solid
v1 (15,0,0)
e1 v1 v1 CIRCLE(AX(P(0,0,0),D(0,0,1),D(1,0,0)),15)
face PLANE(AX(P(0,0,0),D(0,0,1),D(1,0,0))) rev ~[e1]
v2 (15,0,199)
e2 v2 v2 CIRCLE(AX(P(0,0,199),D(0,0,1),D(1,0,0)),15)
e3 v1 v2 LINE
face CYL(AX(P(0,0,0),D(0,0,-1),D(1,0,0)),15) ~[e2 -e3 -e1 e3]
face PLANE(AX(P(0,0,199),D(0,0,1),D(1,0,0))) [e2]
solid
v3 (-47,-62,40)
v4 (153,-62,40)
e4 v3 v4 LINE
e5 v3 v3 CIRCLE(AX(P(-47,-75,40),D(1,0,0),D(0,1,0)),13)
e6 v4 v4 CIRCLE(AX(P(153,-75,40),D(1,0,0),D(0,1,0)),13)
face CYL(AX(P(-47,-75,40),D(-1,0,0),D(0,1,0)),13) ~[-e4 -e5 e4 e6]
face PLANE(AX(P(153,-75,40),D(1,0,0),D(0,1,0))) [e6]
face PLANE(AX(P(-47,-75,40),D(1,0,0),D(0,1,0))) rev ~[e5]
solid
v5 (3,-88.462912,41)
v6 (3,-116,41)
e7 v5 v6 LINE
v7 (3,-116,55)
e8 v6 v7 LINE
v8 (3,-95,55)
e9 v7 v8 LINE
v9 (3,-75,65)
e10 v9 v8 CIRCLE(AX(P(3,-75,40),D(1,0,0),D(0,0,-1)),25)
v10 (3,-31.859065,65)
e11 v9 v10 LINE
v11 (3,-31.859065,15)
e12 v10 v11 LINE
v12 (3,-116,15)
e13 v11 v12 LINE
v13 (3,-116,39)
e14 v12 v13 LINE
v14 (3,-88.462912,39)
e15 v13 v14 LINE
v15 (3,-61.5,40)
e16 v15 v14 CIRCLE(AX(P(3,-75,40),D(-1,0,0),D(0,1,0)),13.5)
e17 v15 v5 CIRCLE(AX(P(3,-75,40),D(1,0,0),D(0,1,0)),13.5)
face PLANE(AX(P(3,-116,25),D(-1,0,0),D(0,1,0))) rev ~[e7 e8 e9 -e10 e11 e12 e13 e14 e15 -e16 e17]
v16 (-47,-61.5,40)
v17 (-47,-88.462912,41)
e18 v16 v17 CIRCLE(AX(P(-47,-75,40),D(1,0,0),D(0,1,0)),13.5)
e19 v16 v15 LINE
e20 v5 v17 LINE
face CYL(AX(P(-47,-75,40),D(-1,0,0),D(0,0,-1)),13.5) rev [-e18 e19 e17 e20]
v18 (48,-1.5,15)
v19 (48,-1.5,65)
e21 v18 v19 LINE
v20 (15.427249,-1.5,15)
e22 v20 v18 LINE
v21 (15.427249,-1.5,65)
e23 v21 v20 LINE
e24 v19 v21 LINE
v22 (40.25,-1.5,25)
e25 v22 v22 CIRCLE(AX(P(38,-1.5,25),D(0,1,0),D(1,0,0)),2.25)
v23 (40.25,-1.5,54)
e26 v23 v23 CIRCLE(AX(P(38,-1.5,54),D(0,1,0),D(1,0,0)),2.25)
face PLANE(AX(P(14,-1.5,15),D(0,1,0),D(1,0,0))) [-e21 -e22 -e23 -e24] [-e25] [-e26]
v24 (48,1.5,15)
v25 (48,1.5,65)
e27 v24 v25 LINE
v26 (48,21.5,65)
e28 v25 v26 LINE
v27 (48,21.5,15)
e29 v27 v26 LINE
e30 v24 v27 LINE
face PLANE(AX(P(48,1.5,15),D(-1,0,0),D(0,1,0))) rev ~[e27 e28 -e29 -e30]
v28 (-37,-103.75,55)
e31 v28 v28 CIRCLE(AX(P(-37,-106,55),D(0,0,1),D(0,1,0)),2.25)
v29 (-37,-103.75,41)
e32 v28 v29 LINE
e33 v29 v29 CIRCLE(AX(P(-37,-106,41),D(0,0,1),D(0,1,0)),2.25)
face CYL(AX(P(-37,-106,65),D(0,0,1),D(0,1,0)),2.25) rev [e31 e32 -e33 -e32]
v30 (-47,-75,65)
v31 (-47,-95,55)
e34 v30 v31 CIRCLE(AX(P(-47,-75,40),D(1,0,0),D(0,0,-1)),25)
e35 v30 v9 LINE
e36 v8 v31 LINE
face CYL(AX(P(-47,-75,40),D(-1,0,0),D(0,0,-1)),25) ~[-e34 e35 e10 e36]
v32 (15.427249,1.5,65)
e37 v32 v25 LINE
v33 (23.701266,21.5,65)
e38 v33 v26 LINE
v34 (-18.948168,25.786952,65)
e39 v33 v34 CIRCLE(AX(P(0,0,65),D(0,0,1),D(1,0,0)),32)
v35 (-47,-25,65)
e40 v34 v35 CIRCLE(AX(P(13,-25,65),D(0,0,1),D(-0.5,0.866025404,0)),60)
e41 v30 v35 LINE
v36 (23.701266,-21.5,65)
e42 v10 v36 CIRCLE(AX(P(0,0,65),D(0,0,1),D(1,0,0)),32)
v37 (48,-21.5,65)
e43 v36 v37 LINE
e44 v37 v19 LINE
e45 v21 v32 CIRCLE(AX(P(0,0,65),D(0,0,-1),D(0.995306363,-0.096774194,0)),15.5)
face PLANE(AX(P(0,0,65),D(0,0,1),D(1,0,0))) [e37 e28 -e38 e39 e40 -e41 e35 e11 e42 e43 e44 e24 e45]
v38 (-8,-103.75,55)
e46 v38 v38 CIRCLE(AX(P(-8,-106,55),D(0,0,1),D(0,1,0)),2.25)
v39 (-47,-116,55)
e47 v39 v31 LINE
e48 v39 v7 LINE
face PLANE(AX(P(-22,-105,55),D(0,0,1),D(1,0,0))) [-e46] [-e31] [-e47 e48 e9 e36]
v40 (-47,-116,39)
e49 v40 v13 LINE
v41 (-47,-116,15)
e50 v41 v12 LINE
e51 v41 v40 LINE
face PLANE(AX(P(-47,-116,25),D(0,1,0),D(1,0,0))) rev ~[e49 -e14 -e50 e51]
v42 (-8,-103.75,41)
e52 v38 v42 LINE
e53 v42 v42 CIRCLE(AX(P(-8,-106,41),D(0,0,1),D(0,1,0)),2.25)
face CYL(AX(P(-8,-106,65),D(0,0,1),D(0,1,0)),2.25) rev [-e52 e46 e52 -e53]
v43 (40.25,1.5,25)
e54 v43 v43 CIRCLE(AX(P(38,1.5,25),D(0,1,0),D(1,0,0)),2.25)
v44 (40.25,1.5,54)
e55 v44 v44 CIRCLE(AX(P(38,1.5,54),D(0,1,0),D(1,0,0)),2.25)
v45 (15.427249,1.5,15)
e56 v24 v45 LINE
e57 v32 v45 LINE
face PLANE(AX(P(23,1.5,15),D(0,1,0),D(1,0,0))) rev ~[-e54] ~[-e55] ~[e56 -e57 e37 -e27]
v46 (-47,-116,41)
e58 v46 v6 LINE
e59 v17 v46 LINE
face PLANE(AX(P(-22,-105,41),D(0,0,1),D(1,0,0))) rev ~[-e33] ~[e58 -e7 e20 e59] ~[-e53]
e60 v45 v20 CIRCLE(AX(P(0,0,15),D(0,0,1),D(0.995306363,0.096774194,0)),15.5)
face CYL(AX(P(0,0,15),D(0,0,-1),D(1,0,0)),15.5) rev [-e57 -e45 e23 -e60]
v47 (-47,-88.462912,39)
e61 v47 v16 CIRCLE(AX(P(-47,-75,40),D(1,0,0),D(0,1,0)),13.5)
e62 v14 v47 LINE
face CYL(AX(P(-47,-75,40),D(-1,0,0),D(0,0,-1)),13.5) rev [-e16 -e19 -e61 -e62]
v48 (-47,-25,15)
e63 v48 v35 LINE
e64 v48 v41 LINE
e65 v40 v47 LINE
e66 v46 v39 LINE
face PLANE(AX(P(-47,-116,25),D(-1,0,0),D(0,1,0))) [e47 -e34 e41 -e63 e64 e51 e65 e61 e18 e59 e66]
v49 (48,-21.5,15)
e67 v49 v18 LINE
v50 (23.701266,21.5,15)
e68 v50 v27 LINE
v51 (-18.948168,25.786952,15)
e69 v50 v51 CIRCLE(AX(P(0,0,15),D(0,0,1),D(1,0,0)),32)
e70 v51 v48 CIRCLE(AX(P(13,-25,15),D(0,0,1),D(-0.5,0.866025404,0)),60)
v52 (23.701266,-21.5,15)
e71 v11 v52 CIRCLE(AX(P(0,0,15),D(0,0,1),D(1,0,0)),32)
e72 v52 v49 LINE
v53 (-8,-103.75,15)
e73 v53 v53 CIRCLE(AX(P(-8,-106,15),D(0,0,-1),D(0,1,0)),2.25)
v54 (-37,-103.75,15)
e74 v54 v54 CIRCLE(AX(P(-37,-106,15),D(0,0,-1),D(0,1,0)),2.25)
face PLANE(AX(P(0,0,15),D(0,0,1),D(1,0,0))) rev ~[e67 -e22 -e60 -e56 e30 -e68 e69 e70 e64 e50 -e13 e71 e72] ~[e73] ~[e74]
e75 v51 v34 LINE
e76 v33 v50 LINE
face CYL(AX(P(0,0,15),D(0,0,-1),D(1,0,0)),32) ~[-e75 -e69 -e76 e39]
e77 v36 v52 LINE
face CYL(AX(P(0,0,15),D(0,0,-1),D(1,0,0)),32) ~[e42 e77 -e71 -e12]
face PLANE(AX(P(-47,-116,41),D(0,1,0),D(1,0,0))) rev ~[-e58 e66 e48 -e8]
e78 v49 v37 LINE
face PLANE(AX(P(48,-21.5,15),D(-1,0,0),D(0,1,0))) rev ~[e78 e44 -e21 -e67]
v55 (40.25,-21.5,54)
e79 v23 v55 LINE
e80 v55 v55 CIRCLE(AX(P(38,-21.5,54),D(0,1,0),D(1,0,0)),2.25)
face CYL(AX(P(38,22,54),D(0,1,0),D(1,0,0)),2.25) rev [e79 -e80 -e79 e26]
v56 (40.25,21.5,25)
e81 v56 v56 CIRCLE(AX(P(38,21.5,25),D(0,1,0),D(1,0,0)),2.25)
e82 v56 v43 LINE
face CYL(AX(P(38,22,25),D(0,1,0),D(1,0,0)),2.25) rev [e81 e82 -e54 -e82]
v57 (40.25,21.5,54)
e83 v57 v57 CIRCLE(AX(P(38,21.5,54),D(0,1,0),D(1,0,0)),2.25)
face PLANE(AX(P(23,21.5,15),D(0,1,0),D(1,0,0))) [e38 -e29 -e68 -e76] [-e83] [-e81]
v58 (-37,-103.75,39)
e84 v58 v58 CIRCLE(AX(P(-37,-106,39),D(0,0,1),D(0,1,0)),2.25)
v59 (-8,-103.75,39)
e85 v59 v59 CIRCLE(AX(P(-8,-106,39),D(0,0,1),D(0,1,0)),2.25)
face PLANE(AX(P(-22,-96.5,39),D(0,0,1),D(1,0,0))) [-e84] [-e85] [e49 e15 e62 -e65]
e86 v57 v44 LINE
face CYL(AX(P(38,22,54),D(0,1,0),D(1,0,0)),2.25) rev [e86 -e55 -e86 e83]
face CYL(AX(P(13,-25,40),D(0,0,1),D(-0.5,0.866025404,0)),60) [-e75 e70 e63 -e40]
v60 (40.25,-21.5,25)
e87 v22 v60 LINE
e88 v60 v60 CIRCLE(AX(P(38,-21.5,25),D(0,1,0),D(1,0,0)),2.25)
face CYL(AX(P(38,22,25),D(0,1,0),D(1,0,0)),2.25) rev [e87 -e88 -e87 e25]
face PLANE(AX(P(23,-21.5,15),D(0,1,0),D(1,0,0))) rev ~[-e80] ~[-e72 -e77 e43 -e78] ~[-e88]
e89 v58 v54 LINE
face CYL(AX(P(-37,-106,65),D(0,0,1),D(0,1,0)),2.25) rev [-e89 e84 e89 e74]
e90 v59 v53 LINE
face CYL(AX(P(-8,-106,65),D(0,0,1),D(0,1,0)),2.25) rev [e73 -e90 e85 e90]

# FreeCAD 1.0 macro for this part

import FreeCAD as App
import Part
import Sketcher
from FreeCAD import Vector
Q = App.Units.Quantity

doc = App.newDocument("Part")
body = doc.addObject("PartDesign::Body", "Body")

sketch1 = doc.addObject("Sketcher::SketchObject", "Sketch")
body.addObject(sketch1)
sketch1.AttachmentSupport = (doc.XY_Plane, [""])
sketch1.MapMode = "FlatFace"
sketch1.addGeometry(Part.Circle(Vector(0, 0, 0), Vector(0, 0, 1), 15), False)
sketch1.addConstraint([
    Sketcher.Constraint("Coincident", 0, 3, -1, 1),
    Sketcher.Constraint("Diameter", 0, Q("30 mm")),
])
pad1 = doc.addObject("PartDesign::Pad", "Pad")
body.addObject(pad1)
pad1.Profile = sketch1
pad1.Length = 199
body2 = doc.addObject("PartDesign::Body", "Body001")

sketch2 = doc.addObject("Sketcher::SketchObject", "Sketch001")
body2.addObject(sketch2)
sketch2.AttachmentSupport = (doc.getObject("YZ_Plane001"), [""])
sketch2.MapMode = "FlatFace"
sketch2.AttachmentOffset = App.Placement(Vector(0, 0, -47), App.Rotation())
sketch2.addGeometry(Part.Circle(Vector(-75, 40, 0), Vector(0, 0, 1), 13), False)
sketch2.addConstraint([
    Sketcher.Constraint("Diameter", 0, Q("26 mm")),
    Sketcher.Constraint("DistanceX", 0, 3, -1, 1, Q("75 mm")),
    Sketcher.Constraint("DistanceY", -1, 1, 0, 3, Q("40 mm")),
])
pad2 = doc.addObject("PartDesign::Pad", "Pad001")
body2.addObject(pad2)
pad2.Profile = sketch2
pad2.Length = 200
body3 = doc.addObject("PartDesign::Body", "Body002")

sketch3 = doc.addObject("Sketcher::SketchObject", "Sketch002")
body3.addObject(sketch3)
sketch3.AttachmentSupport = (doc.getObject("XZ_Plane002"), [""])
sketch3.MapMode = "FlatFace"
sketch3.AttachmentOffset = App.Placement(Vector(0, 0, -22), App.Rotation())
sketch3.addGeometry(Part.Circle(Vector(38, 25, 0), Vector(0, 0, 1), 2.25), False)
sketch3.addConstraint([
    Sketcher.Constraint("Diameter", 0, Q("4.5 mm")),
    Sketcher.Constraint("DistanceX", -1, 1, 0, 3, Q("38 mm")),
    Sketcher.Constraint("DistanceY", -1, 1, 0, 3, Q("25 mm")),
])
pad3 = doc.addObject("PartDesign::Pad", "Pad002")
body3.addObject(pad3)
pad3.Profile = sketch3
pad3.Length = 50
body4 = doc.addObject("PartDesign::Body", "Body003")
body4.AllowCompound = True

sketch4 = doc.addObject("Sketcher::SketchObject", "Sketch003")
body4.addObject(sketch4)
sketch4.AttachmentSupport = (doc.getObject("XZ_Plane003"), [""])
sketch4.MapMode = "FlatFace"
sketch4.AttachmentOffset = App.Placement(Vector(0, 0, -22), App.Rotation())
sketch4.addGeometry(Part.Circle(Vector(38, 54, 0), Vector(0, 0, 1), 2.25), False)
sketch4.addConstraint([
    Sketcher.Constraint("Diameter", 0, Q("4.5 mm")),
    Sketcher.Constraint("DistanceX", -1, 1, 0, 3, Q("38 mm")),
    Sketcher.Constraint("DistanceY", -1, 1, 0, 3, Q("54 mm")),
])
pad4 = doc.addObject("PartDesign::Pad", "Pad003")
body4.addObject(pad4)
pad4.Profile = sketch4
pad4.Length = 50
doc.recompute()

boolean = doc.addObject("PartDesign::Boolean", "Boolean")
body4.addObject(boolean)
boolean.Type = "Fuse"
boolean.addObjects([body3])
body5 = doc.addObject("PartDesign::Body", "Body004")
body5.AllowCompound = True
doc.recompute()

body4.Placement = App.Placement(Vector(0, 0, 0), App.Rotation(Vector(1, 0, 0), 90))
boolean2 = doc.addObject("PartDesign::Boolean", "Boolean001")
body5.addObject(boolean2)
boolean2.Type = "Fuse"
boolean2.addObjects([body4])
body6 = doc.addObject("PartDesign::Body", "Body005")
body6.AllowCompound = True
doc.recompute()

body5.Placement = App.Placement(Vector(-62, -144, 43), App.Rotation(Vector(0, 0, 1), 90))
boolean3 = doc.addObject("PartDesign::Boolean", "Boolean002")
body6.addObject(boolean3)
boolean3.Type = "Fuse"
boolean3.addObjects([body5])
body7 = doc.addObject("PartDesign::Body", "Body006")

sketch5 = doc.addObject("Sketcher::SketchObject", "Sketch004")
body7.addObject(sketch5)
sketch5.AttachmentSupport = (doc.getObject("XY_Plane006"), [""])
sketch5.MapMode = "FlatFace"
sketch5.addGeometry(Part.Circle(Vector(0, 0, 0), Vector(0, 0, 1), 15.5), False)
sketch5.addConstraint([
    Sketcher.Constraint("Coincident", 0, 3, -1, 1),
    Sketcher.Constraint("Diameter", 0, Q("31 mm")),
])
pad5 = doc.addObject("PartDesign::Pad", "Pad004")
body7.addObject(pad5)
pad5.Profile = sketch5
pad5.Length = 199
body8 = doc.addObject("PartDesign::Body", "Body007")

sketch6 = doc.addObject("Sketcher::SketchObject", "Sketch005")
body8.addObject(sketch6)
sketch6.AttachmentSupport = (doc.getObject("YZ_Plane007"), [""])
sketch6.MapMode = "FlatFace"
sketch6.AttachmentOffset = App.Placement(Vector(0, 0, -47), App.Rotation())
sketch6.addGeometry(Part.Circle(Vector(-75, 40, 0), Vector(0, 0, 1), 13.5), False)
sketch6.addConstraint([
    Sketcher.Constraint("Diameter", 0, Q("27 mm")),
    Sketcher.Constraint("DistanceX", 0, 3, -1, 1, Q("75 mm")),
    Sketcher.Constraint("DistanceY", -1, 1, 0, 3, Q("40 mm")),
])
pad6 = doc.addObject("PartDesign::Pad", "Pad005")
body8.addObject(pad6)
pad6.Profile = sketch6
pad6.Length = 200
body9 = doc.addObject("PartDesign::Body", "Body008")

sketch7 = doc.addObject("Sketcher::SketchObject", "Sketch006")
body9.addObject(sketch7)
sketch7.AttachmentSupport = (doc.getObject("XY_Plane008"), [""])
sketch7.MapMode = "FlatFace"
sketch7.AttachmentOffset = App.Placement(Vector(0, 0, 15), App.Rotation())
sketch7.addGeometry([
    Part.LineSegment(Vector(14, 1.5, 0), Vector(14, -1.5, 0)),
    Part.LineSegment(Vector(14, -1.5, 0), Vector(34, -1.5, 0)),
    Part.LineSegment(Vector(34, -1.5, 0), Vector(34, 1.5, 0)),
    Part.LineSegment(Vector(34, 1.5, 0), Vector(14, 1.5, 0)),
], False)
sketch7.addConstraint([
    Sketcher.Constraint("Coincident", 0, 2, 1, 1),
    Sketcher.Constraint("Coincident", 1, 2, 2, 1),
    Sketcher.Constraint("Coincident", 2, 2, 3, 1),
    Sketcher.Constraint("Coincident", 3, 2, 0, 1),
    Sketcher.Constraint("Vertical", 0),
    Sketcher.Constraint("Horizontal", 1),
    Sketcher.Constraint("Vertical", 2),
    Sketcher.Constraint("Horizontal", 3),
    Sketcher.Constraint("DistanceX", 1, 1, 1, 2, Q("20 mm")),
    Sketcher.Constraint("DistanceY", 0, 2, 0, 1, Q("3 mm")),
    Sketcher.Constraint("DistanceX", -1, 1, 0, 2, Q("14 mm")),
    Sketcher.Constraint("DistanceY", 0, 2, -1, 1, Q("1.5 mm")),
])
pad7 = doc.addObject("PartDesign::Pad", "Pad006")
body9.addObject(pad7)
pad7.Profile = sketch7
pad7.Length = 50
body10 = doc.addObject("PartDesign::Body", "Body009")

sketch8 = doc.addObject("Sketcher::SketchObject", "Sketch007")
body10.addObject(sketch8)
sketch8.AttachmentSupport = (doc.getObject("XY_Plane009"), [""])
sketch8.MapMode = "FlatFace"
sketch8.AttachmentOffset = App.Placement(Vector(0, 0, 39), App.Rotation())
sketch8.addGeometry([
    Part.LineSegment(Vector(-47, -83, 0), Vector(-47, -110, 0)),
    Part.LineSegment(Vector(-47, -110, 0), Vector(3, -110, 0)),
    Part.LineSegment(Vector(3, -110, 0), Vector(3, -83, 0)),
    Part.LineSegment(Vector(3, -83, 0), Vector(-47, -83, 0)),
], False)
sketch8.addConstraint([
    Sketcher.Constraint("Coincident", 0, 2, 1, 1),
    Sketcher.Constraint("Coincident", 1, 2, 2, 1),
    Sketcher.Constraint("Coincident", 2, 2, 3, 1),
    Sketcher.Constraint("Coincident", 3, 2, 0, 1),
    Sketcher.Constraint("Vertical", 0),
    Sketcher.Constraint("Horizontal", 1),
    Sketcher.Constraint("Vertical", 2),
    Sketcher.Constraint("Horizontal", 3),
    Sketcher.Constraint("DistanceX", 1, 1, 1, 2, Q("50 mm")),
    Sketcher.Constraint("DistanceY", 0, 2, 0, 1, Q("27 mm")),
    Sketcher.Constraint("DistanceX", 0, 2, -1, 1, Q("47 mm")),
    Sketcher.Constraint("DistanceY", 0, 2, -1, 1, Q("110 mm")),
])
pad8 = doc.addObject("PartDesign::Pad", "Pad007")
body10.addObject(pad8)
pad8.Profile = sketch8
pad8.Length = 2
body11 = doc.addObject("PartDesign::Body", "Body010")

sketch9 = doc.addObject("Sketcher::SketchObject", "Sketch008")
body11.addObject(sketch9)
sketch9.AttachmentSupport = (doc.getObject("XZ_Plane010"), [""])
sketch9.MapMode = "FlatFace"
sketch9.AttachmentOffset = App.Placement(Vector(0, 0, -22), App.Rotation())
sketch9.addGeometry(Part.Circle(Vector(38, 25, 0), Vector(0, 0, 1), 2.25), False)
sketch9.addConstraint([
    Sketcher.Constraint("Diameter", 0, Q("4.5 mm")),
    Sketcher.Constraint("DistanceX", -1, 1, 0, 3, Q("38 mm")),
    Sketcher.Constraint("DistanceY", -1, 1, 0, 3, Q("25 mm")),
])
pad9 = doc.addObject("PartDesign::Pad", "Pad008")
body11.addObject(pad9)
pad9.Profile = sketch9
pad9.Length = 50
body12 = doc.addObject("PartDesign::Body", "Body011")
body12.AllowCompound = True

sketch10 = doc.addObject("Sketcher::SketchObject", "Sketch009")
body12.addObject(sketch10)
sketch10.AttachmentSupport = (doc.getObject("XZ_Plane011"), [""])
sketch10.MapMode = "FlatFace"
sketch10.AttachmentOffset = App.Placement(Vector(0, 0, -22), App.Rotation())
sketch10.addGeometry(Part.Circle(Vector(38, 54, 0), Vector(0, 0, 1), 2.25), False)
sketch10.addConstraint([
    Sketcher.Constraint("Diameter", 0, Q("4.5 mm")),
    Sketcher.Constraint("DistanceX", -1, 1, 0, 3, Q("38 mm")),
    Sketcher.Constraint("DistanceY", -1, 1, 0, 3, Q("54 mm")),
])
pad10 = doc.addObject("PartDesign::Pad", "Pad009")
body12.addObject(pad10)
pad10.Profile = sketch10
pad10.Length = 50
doc.recompute()

boolean4 = doc.addObject("PartDesign::Boolean", "Boolean003")
body12.addObject(boolean4)
boolean4.Type = "Fuse"
boolean4.addObjects([body11])
doc.recompute()

boolean5 = doc.addObject("PartDesign::Boolean", "Boolean004")
body12.addObject(boolean5)
boolean5.Type = "Fuse"
boolean5.addObjects([body6])
doc.recompute()

boolean6 = doc.addObject("PartDesign::Boolean", "Boolean005")
body12.addObject(boolean6)
boolean6.Type = "Fuse"
boolean6.addObjects([body7])
doc.recompute()

boolean7 = doc.addObject("PartDesign::Boolean", "Boolean006")
body12.addObject(boolean7)
boolean7.Type = "Fuse"
boolean7.addObjects([body8])
doc.recompute()

boolean8 = doc.addObject("PartDesign::Boolean", "Boolean007")
body12.addObject(boolean8)
boolean8.Type = "Fuse"
boolean8.addObjects([body9])
doc.recompute()

boolean9 = doc.addObject("PartDesign::Boolean", "Boolean008")
body12.addObject(boolean9)
boolean9.Type = "Fuse"
boolean9.addObjects([body10])
body13 = doc.addObject("PartDesign::Body", "Body012")

sketch11 = doc.addObject("Sketcher::SketchObject", "Sketch010")
body13.addObject(sketch11)
sketch11.AttachmentSupport = (doc.getObject("XY_Plane012"), [""])
sketch11.MapMode = "FlatFace"
sketch11.AttachmentOffset = App.Placement(Vector(0, 0, 15), App.Rotation())
sketch11.addGeometry([
    Part.LineSegment(Vector(23, -1.5, 0), Vector(23, -21.5, 0)),
    Part.LineSegment(Vector(23, -21.5, 0), Vector(48, -21.5, 0)),
    Part.LineSegment(Vector(48, -21.5, 0), Vector(48, -1.5, 0)),
    Part.LineSegment(Vector(48, -1.5, 0), Vector(23, -1.5, 0)),
], False)
sketch11.addConstraint([
    Sketcher.Constraint("Coincident", 0, 2, 1, 1),
    Sketcher.Constraint("Coincident", 1, 2, 2, 1),
    Sketcher.Constraint("Coincident", 2, 2, 3, 1),
    Sketcher.Constraint("Coincident", 3, 2, 0, 1),
    Sketcher.Constraint("Vertical", 0),
    Sketcher.Constraint("Horizontal", 1),
    Sketcher.Constraint("Vertical", 2),
    Sketcher.Constraint("Horizontal", 3),
    Sketcher.Constraint("DistanceX", 1, 1, 1, 2, Q("25 mm")),
    Sketcher.Constraint("DistanceY", 0, 2, 0, 1, Q("20 mm")),
    Sketcher.Constraint("DistanceX", -1, 1, 0, 2, Q("23 mm")),
    Sketcher.Constraint("DistanceY", 0, 2, -1, 1, Q("21.5 mm")),
])
pad11 = doc.addObject("PartDesign::Pad", "Pad010")
body13.addObject(pad11)
pad11.Profile = sketch11
pad11.Length = 50
body14 = doc.addObject("PartDesign::Body", "Body013")

sketch12 = doc.addObject("Sketcher::SketchObject", "Sketch011")
body14.addObject(sketch12)
sketch12.AttachmentSupport = (doc.getObject("XY_Plane013"), [""])
sketch12.MapMode = "FlatFace"
sketch12.AttachmentOffset = App.Placement(Vector(0, 0, 15), App.Rotation())
sketch12.addGeometry([
    Part.LineSegment(Vector(23, 21.5, 0), Vector(23, 1.5, 0)),
    Part.LineSegment(Vector(23, 1.5, 0), Vector(48, 1.5, 0)),
    Part.LineSegment(Vector(48, 1.5, 0), Vector(48, 21.5, 0)),
    Part.LineSegment(Vector(48, 21.5, 0), Vector(23, 21.5, 0)),
], False)
sketch12.addConstraint([
    Sketcher.Constraint("Coincident", 0, 2, 1, 1),
    Sketcher.Constraint("Coincident", 1, 2, 2, 1),
    Sketcher.Constraint("Coincident", 2, 2, 3, 1),
    Sketcher.Constraint("Coincident", 3, 2, 0, 1),
    Sketcher.Constraint("Vertical", 0),
    Sketcher.Constraint("Horizontal", 1),
    Sketcher.Constraint("Vertical", 2),
    Sketcher.Constraint("Horizontal", 3),
    Sketcher.Constraint("DistanceX", 1, 1, 1, 2, Q("25 mm")),
    Sketcher.Constraint("DistanceY", 0, 2, 0, 1, Q("20 mm")),
    Sketcher.Constraint("DistanceX", -1, 1, 0, 2, Q("23 mm")),
    Sketcher.Constraint("DistanceY", -1, 1, 0, 2, Q("1.5 mm")),
])
pad12 = doc.addObject("PartDesign::Pad", "Pad011")
body14.addObject(pad12)
pad12.Profile = sketch12
pad12.Length = 50
body15 = doc.addObject("PartDesign::Body", "Body014")

sketch13 = doc.addObject("Sketcher::SketchObject", "Sketch012")
body15.addObject(sketch13)
sketch13.AttachmentSupport = (doc.getObject("XY_Plane014"), [""])
sketch13.MapMode = "FlatFace"
sketch13.AttachmentOffset = App.Placement(Vector(0, 0, 15), App.Rotation())
sketch13.addGeometry([
    Part.LineSegment(Vector(-47, -41, 0), Vector(-47, -116, 0)),
    Part.LineSegment(Vector(-47, -116, 0), Vector(3, -116, 0)),
    Part.LineSegment(Vector(3, -116, 0), Vector(3, -41, 0)),
    Part.LineSegment(Vector(3, -41, 0), Vector(-47, -41, 0)),
], False)
sketch13.addConstraint([
    Sketcher.Constraint("Coincident", 0, 2, 1, 1),
    Sketcher.Constraint("Coincident", 1, 2, 2, 1),
    Sketcher.Constraint("Coincident", 2, 2, 3, 1),
    Sketcher.Constraint("Coincident", 3, 2, 0, 1),
    Sketcher.Constraint("Vertical", 0),
    Sketcher.Constraint("Horizontal", 1),
    Sketcher.Constraint("Vertical", 2),
    Sketcher.Constraint("Horizontal", 3),
    Sketcher.Constraint("DistanceX", 1, 1, 1, 2, Q("50 mm")),
    Sketcher.Constraint("DistanceY", 0, 2, 0, 1, Q("75 mm")),
    Sketcher.Constraint("DistanceX", 0, 2, -1, 1, Q("47 mm")),
    Sketcher.Constraint("DistanceY", 0, 2, -1, 1, Q("116 mm")),
])
pad13 = doc.addObject("PartDesign::Pad", "Pad012")
body15.addObject(pad13)
pad13.Profile = sketch13
pad13.Length = 10
body16 = doc.addObject("PartDesign::Body", "Body015")

sketch14 = doc.addObject("Sketcher::SketchObject", "Sketch013")
body16.addObject(sketch14)
sketch14.AttachmentSupport = (doc.getObject("XY_Plane015"), [""])
sketch14.MapMode = "FlatFace"
sketch14.AttachmentOffset = App.Placement(Vector(0, 0, 25), App.Rotation())
sketch14.addGeometry([
    Part.LineSegment(Vector(-47, -64, 0), Vector(-47, -116, 0)),
    Part.LineSegment(Vector(-47, -116, 0), Vector(3, -116, 0)),
    Part.LineSegment(Vector(3, -116, 0), Vector(3, -64, 0)),
    Part.LineSegment(Vector(3, -64, 0), Vector(-47, -64, 0)),
], False)
sketch14.addConstraint([
    Sketcher.Constraint("Coincident", 0, 2, 1, 1),
    Sketcher.Constraint("Coincident", 1, 2, 2, 1),
    Sketcher.Constraint("Coincident", 2, 2, 3, 1),
    Sketcher.Constraint("Coincident", 3, 2, 0, 1),
    Sketcher.Constraint("Vertical", 0),
    Sketcher.Constraint("Horizontal", 1),
    Sketcher.Constraint("Vertical", 2),
    Sketcher.Constraint("Horizontal", 3),
    Sketcher.Constraint("DistanceX", 1, 1, 1, 2, Q("50 mm")),
    Sketcher.Constraint("DistanceY", 0, 2, 0, 1, Q("52 mm")),
    Sketcher.Constraint("DistanceX", 0, 2, -1, 1, Q("47 mm")),
    Sketcher.Constraint("DistanceY", 0, 2, -1, 1, Q("116 mm")),
])
pad14 = doc.addObject("PartDesign::Pad", "Pad013")
body16.addObject(pad14)
pad14.Profile = sketch14
pad14.Length = 14
body17 = doc.addObject("PartDesign::Body", "Body016")

sketch15 = doc.addObject("Sketcher::SketchObject", "Sketch014")
body17.addObject(sketch15)
sketch15.AttachmentSupport = (doc.getObject("XY_Plane016"), [""])
sketch15.MapMode = "FlatFace"
sketch15.AttachmentOffset = App.Placement(Vector(0, 0, 41), App.Rotation())
sketch15.addGeometry([
    Part.LineSegment(Vector(-47, -94, 0), Vector(-47, -116, 0)),
    Part.LineSegment(Vector(-47, -116, 0), Vector(3, -116, 0)),
    Part.LineSegment(Vector(3, -116, 0), Vector(3, -94, 0)),
    Part.LineSegment(Vector(3, -94, 0), Vector(-47, -94, 0)),
], False)
sketch15.addConstraint([
    Sketcher.Constraint("Coincident", 0, 2, 1, 1),
    Sketcher.Constraint("Coincident", 1, 2, 2, 1),
    Sketcher.Constraint("Coincident", 2, 2, 3, 1),
    Sketcher.Constraint("Coincident", 3, 2, 0, 1),
    Sketcher.Constraint("Vertical", 0),
    Sketcher.Constraint("Horizontal", 1),
    Sketcher.Constraint("Vertical", 2),
    Sketcher.Constraint("Horizontal", 3),
    Sketcher.Constraint("DistanceX", 1, 1, 1, 2, Q("50 mm")),
    Sketcher.Constraint("DistanceY", 0, 2, 0, 1, Q("22 mm")),
    Sketcher.Constraint("DistanceX", 0, 2, -1, 1, Q("47 mm")),
    Sketcher.Constraint("DistanceY", 0, 2, -1, 1, Q("116 mm")),
])
pad15 = doc.addObject("PartDesign::Pad", "Pad014")
body17.addObject(pad15)
pad15.Profile = sketch15
pad15.Length = 14
body18 = doc.addObject("PartDesign::Body", "Body017")

sketch16 = doc.addObject("Sketcher::SketchObject", "Sketch015")
body18.addObject(sketch16)
sketch16.AttachmentSupport = (doc.getObject("XZ_Plane017"), [""])
sketch16.MapMode = "FlatFace"
sketch16.addGeometry([
    Part.LineSegment(Vector(0, 50, 0), Vector(0, 0, 0)),
    Part.LineSegment(Vector(0, 0, 0), Vector(60, 0, 0)),
    Part.LineSegment(Vector(60, 0, 0), Vector(60, 50, 0)),
    Part.LineSegment(Vector(60, 50, 0), Vector(0, 50, 0)),
], False)
sketch16.addConstraint([
    Sketcher.Constraint("Coincident", 0, 2, 1, 1),
    Sketcher.Constraint("Coincident", 1, 2, 2, 1),
    Sketcher.Constraint("Coincident", 2, 2, 3, 1),
    Sketcher.Constraint("Coincident", 3, 2, 0, 1),
    Sketcher.Constraint("Vertical", 0),
    Sketcher.Constraint("Horizontal", 1),
    Sketcher.Constraint("Vertical", 2),
    Sketcher.Constraint("Horizontal", 3),
    Sketcher.Constraint("Coincident", 0, 2, -1, 1),
    Sketcher.Constraint("DistanceX", 1, 1, 1, 2, Q("60 mm")),
    Sketcher.Constraint("DistanceY", 0, 2, 0, 1, Q("50 mm")),
])
revolution = doc.addObject("PartDesign::Revolution", "Revolution")
body18.addObject(revolution)
revolution.Profile = sketch16
revolution.ReferenceAxis = (sketch16, ["V_Axis"])
revolution.Angle = 60
body19 = doc.addObject("PartDesign::Body", "Body018")
doc.recompute()

body18.Placement = App.Placement(Vector(13, -25, 15), App.Rotation(Vector(0, 0, 1), 120))
boolean10 = doc.addObject("PartDesign::Boolean", "Boolean009")
body19.addObject(boolean10)
boolean10.Type = "Fuse"
boolean10.addObjects([body18])
body20 = doc.addObject("PartDesign::Body", "Body019")

sketch17 = doc.addObject("Sketcher::SketchObject", "Sketch016")
body20.addObject(sketch17)
sketch17.AttachmentSupport = (doc.getObject("XY_Plane019"), [""])
sketch17.MapMode = "FlatFace"
sketch17.AttachmentOffset = App.Placement(Vector(0, 0, 15), App.Rotation())
sketch17.addGeometry([
    Part.Circle(Vector(0, 0, 0), Vector(0, 0, 1), 32),
    Part.Circle(Vector(0, 0, 0), Vector(0, 0, 1), 15.5),
], False)
sketch17.addConstraint([
    Sketcher.Constraint("Coincident", 0, 3, -1, 1),
    Sketcher.Constraint("Coincident", 1, 3, -1, 1),
    Sketcher.Constraint("Diameter", 0, Q("64 mm")),
    Sketcher.Constraint("Diameter", 1, Q("31 mm")),
])
pad16 = doc.addObject("PartDesign::Pad", "Pad015")
body20.addObject(pad16)
pad16.Profile = sketch17
pad16.Length = 50
body21 = doc.addObject("PartDesign::Body", "Body020")

sketch18 = doc.addObject("Sketcher::SketchObject", "Sketch017")
body21.addObject(sketch18)
sketch18.AttachmentSupport = (doc.getObject("YZ_Plane020"), [""])
sketch18.MapMode = "FlatFace"
sketch18.AttachmentOffset = App.Placement(Vector(0, 0, -47), App.Rotation())
sketch18.addGeometry([
    Part.Circle(Vector(-75, 40, 0), Vector(0, 0, 1), 25),
    Part.Circle(Vector(-75, 40, 0), Vector(0, 0, 1), 13.5),
], False)
sketch18.addConstraint([
    Sketcher.Constraint("Coincident", 1, 3, 0, 3),
    Sketcher.Constraint("Diameter", 0, Q("50 mm")),
    Sketcher.Constraint("Diameter", 1, Q("27 mm")),
    Sketcher.Constraint("DistanceX", 0, 3, -1, 1, Q("75 mm")),
    Sketcher.Constraint("DistanceY", -1, 1, 0, 3, Q("40 mm")),
])
pad17 = doc.addObject("PartDesign::Pad", "Pad016")
body21.addObject(pad17)
pad17.Profile = sketch18
pad17.Length = 50
body22 = doc.addObject("PartDesign::Body", "Body021")
body22.AllowCompound = True

sketch19 = doc.addObject("Sketcher::SketchObject", "Sketch018")
body22.addObject(sketch19)
sketch19.AttachmentSupport = (doc.getObject("XY_Plane021"), [""])
sketch19.MapMode = "FlatFace"
sketch19.AttachmentOffset = App.Placement(Vector(0, 0, 15), App.Rotation())
sketch19.addGeometry([
    Part.LineSegment(Vector(-47, -25, 0), Vector(-47, -75, 0)),
    Part.LineSegment(Vector(-47, -75, 0), Vector(3, -75, 0)),
    Part.LineSegment(Vector(3, -75, 0), Vector(3, -25, 0)),
    Part.LineSegment(Vector(3, -25, 0), Vector(-47, -25, 0)),
], False)
sketch19.addConstraint([
    Sketcher.Constraint("Coincident", 0, 2, 1, 1),
    Sketcher.Constraint("Coincident", 1, 2, 2, 1),
    Sketcher.Constraint("Coincident", 2, 2, 3, 1),
    Sketcher.Constraint("Coincident", 3, 2, 0, 1),
    Sketcher.Constraint("Vertical", 0),
    Sketcher.Constraint("Horizontal", 1),
    Sketcher.Constraint("Vertical", 2),
    Sketcher.Constraint("Horizontal", 3),
    Sketcher.Constraint("Equal", 3, 0),
    Sketcher.Constraint("DistanceX", 1, 1, 1, 2, Q("50 mm")),
    Sketcher.Constraint("DistanceX", 0, 2, -1, 1, Q("47 mm")),
    Sketcher.Constraint("DistanceY", 0, 2, -1, 1, Q("75 mm")),
])
pad18 = doc.addObject("PartDesign::Pad", "Pad017")
body22.addObject(pad18)
pad18.Profile = sketch19
pad18.Length = 50
doc.recompute()

boolean11 = doc.addObject("PartDesign::Boolean", "Boolean010")
body22.addObject(boolean11)
boolean11.Type = "Fuse"
boolean11.addObjects([body13])
doc.recompute()

boolean12 = doc.addObject("PartDesign::Boolean", "Boolean011")
body22.addObject(boolean12)
boolean12.Type = "Fuse"
boolean12.addObjects([body14])
doc.recompute()

boolean13 = doc.addObject("PartDesign::Boolean", "Boolean012")
body22.addObject(boolean13)
boolean13.Type = "Fuse"
boolean13.addObjects([body15])
doc.recompute()

boolean14 = doc.addObject("PartDesign::Boolean", "Boolean013")
body22.addObject(boolean14)
boolean14.Type = "Fuse"
boolean14.addObjects([body16])
doc.recompute()

boolean15 = doc.addObject("PartDesign::Boolean", "Boolean014")
body22.addObject(boolean15)
boolean15.Type = "Fuse"
boolean15.addObjects([body17])
doc.recompute()

boolean16 = doc.addObject("PartDesign::Boolean", "Boolean015")
body22.addObject(boolean16)
boolean16.Type = "Fuse"
boolean16.addObjects([body19])
doc.recompute()

boolean17 = doc.addObject("PartDesign::Boolean", "Boolean016")
body22.addObject(boolean17)
boolean17.Type = "Fuse"
boolean17.addObjects([body20])
doc.recompute()

boolean18 = doc.addObject("PartDesign::Boolean", "Boolean017")
body22.addObject(boolean18)
boolean18.Type = "Fuse"
boolean18.addObjects([body21])
doc.recompute()

boolean19 = doc.addObject("PartDesign::Boolean", "Boolean018")
body22.addObject(boolean19)
boolean19.Type = "Cut"
boolean19.addObjects([body12])

doc.recompute()
